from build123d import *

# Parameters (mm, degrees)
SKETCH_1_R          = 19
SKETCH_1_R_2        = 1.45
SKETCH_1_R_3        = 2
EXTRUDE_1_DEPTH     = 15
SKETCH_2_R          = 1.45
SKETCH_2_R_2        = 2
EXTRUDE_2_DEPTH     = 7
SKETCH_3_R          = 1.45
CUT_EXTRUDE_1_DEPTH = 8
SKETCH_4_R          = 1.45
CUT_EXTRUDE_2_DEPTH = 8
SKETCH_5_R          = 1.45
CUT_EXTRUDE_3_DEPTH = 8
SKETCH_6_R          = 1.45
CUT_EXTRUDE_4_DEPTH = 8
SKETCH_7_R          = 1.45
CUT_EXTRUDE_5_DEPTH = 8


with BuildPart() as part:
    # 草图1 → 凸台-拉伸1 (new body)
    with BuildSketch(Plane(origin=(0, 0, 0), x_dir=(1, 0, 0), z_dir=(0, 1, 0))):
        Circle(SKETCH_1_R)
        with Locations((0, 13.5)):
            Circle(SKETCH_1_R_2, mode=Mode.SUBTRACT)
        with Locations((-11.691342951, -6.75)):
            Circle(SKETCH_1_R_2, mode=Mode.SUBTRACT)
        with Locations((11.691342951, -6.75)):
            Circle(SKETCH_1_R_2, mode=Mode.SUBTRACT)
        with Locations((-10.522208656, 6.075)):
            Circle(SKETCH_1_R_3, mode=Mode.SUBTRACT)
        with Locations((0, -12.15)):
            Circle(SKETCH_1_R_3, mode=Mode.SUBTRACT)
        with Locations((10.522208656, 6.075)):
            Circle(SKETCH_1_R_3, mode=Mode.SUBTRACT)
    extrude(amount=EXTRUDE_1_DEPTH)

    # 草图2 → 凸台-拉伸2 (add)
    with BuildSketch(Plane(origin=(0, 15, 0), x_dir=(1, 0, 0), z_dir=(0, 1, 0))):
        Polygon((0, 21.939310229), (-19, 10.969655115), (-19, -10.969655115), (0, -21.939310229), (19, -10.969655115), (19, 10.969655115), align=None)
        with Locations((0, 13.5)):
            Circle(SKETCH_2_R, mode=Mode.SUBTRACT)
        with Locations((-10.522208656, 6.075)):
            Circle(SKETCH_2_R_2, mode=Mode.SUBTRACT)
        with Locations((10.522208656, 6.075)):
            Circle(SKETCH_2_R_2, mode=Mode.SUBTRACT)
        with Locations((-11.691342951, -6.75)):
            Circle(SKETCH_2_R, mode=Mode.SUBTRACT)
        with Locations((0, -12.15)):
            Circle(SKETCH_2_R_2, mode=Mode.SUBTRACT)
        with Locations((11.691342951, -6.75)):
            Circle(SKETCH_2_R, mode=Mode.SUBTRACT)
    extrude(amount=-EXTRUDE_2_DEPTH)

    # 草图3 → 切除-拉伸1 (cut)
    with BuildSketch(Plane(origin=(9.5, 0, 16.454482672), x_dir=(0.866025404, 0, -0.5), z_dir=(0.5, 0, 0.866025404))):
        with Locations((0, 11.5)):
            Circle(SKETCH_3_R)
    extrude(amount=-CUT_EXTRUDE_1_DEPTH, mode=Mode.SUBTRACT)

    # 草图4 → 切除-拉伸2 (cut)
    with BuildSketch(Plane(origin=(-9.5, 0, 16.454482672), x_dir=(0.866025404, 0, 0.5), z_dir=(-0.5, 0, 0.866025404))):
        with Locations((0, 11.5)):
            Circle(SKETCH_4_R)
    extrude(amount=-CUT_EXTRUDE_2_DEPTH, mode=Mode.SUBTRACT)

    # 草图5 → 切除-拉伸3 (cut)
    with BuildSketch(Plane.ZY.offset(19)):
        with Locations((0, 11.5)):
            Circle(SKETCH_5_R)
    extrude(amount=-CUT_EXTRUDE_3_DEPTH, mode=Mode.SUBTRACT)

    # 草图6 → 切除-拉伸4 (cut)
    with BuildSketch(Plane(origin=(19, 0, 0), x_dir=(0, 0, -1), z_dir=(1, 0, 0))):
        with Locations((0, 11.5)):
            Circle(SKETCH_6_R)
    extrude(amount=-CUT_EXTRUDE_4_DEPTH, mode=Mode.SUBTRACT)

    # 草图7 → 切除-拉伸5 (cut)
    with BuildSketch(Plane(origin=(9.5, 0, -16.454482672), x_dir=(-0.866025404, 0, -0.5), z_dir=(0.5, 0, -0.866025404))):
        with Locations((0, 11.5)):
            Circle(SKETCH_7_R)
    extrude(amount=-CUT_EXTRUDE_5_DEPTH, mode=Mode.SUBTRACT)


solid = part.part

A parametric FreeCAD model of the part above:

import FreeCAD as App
import Part
import Sketcher
from FreeCAD import Vector
Q = App.Units.Quantity

doc = App.newDocument("Part")
body = doc.addObject("PartDesign::Body", "Body")

# Sketch on XZ plane
sketch1 = body.newObject("Sketcher::SketchObject", "Sketch")
sketch1.AttachmentSupport = (doc.getObject("XZ_Plane"), [""])
sketch1.MapMode = "FlatFace"
sketch1.addGeometry([
    Part.Circle(Vector(0, 0, 0), Vector(0, 0, 1), 19),  # 0
    Part.Circle(Vector(-11.7, 6.8, 0), Vector(0, 0, 1), 1.4),  # 1
    Part.Circle(Vector(0, 12.2, 0), Vector(0, 0, 1), 2),  # 2
    Part.Circle(Vector(11.7, 6.8, 0), Vector(0, 0, 1), 1.4),  # 3
    Part.Circle(Vector(-10.5, -6.1, 0), Vector(0, 0, 1), 2),  # 4
    Part.Circle(Vector(10.5, -6.1, 0), Vector(0, 0, 1), 2),  # 5
    Part.Circle(Vector(0, -13.5, 0), Vector(0, 0, 1), 1.4),  # 6
], False)
sketch1.addConstraint([
    Sketcher.Constraint("Coincident", 0, 3, -1, 1),
    Sketcher.Constraint("Equal", 1, 3),
    Sketcher.Constraint("Equal", 2, 4),
    Sketcher.Constraint("Equal", 4, 5),
    Sketcher.Constraint("Equal", 3, 6),
    Sketcher.Constraint("Symmetric", 1, 3, 3, 3, -2),
    Sketcher.Constraint("Symmetric", 4, 3, 5, 3, -2),
    Sketcher.Constraint("PointOnObject", 2, 3, -2),
    Sketcher.Constraint("PointOnObject", 6, 3, -2),
    Sketcher.Constraint("Diameter", 0, 38.0),
    Sketcher.Constraint("Diameter", 2, 4.0),
    Sketcher.Constraint("Diameter", 1, 2.9),
    Sketcher.Constraint("DistanceY", 6, 3, -1, 1, 13.5),
    Sketcher.Constraint("DistanceY", 1, 3, 2, 3, 5.4),
    Sketcher.Constraint("DistanceY", -1, 1, 1, 3, 6.75),
    Sketcher.Constraint("DistanceY", 4, 3, -1, 1, 6.075),
    Sketcher.Constraint("DistanceX", 4, 3, -1, 1, 10.522209),
    Sketcher.Constraint("DistanceX", 4, 3, 3, 3, 22.213552),
])
pad1 = body.newObject("PartDesign::Pad", "Pad")
pad1.Profile = sketch1
pad1.Length = 15
pad1.Reversed = True

# Sketch on XZ plane
sketch2 = body.newObject("Sketcher::SketchObject", "Sketch001")
sketch2.AttachmentSupport = (doc.getObject("XZ_Plane"), [""])
sketch2.MapMode = "FlatFace"
sketch2.AttachmentOffset = App.Placement(Vector(0, 0, -15), App.Rotation())
sketch2.addGeometry([
    Part.LineSegment(Vector(0, -21.9, 0), Vector(-19, -11, 0)),  # 0
    Part.LineSegment(Vector(-19, -11, 0), Vector(-19, 11, 0)),  # 1
    Part.LineSegment(Vector(-19, 11, 0), Vector(0, 21.9, 0)),  # 2
    Part.LineSegment(Vector(0, 21.9, 0), Vector(19, 11, 0)),  # 3
    Part.LineSegment(Vector(19, 11, 0), Vector(19, -11, 0)),  # 4
    Part.LineSegment(Vector(19, -11, 0), Vector(0, -21.9, 0)),  # 5
    Part.Circle(Vector(-11.7, 6.8, 0), Vector(0, 0, 1), 1.4),  # 6
    Part.Circle(Vector(0, 12.2, 0), Vector(0, 0, 1), 2),  # 7
    Part.Circle(Vector(11.7, 6.8, 0), Vector(0, 0, 1), 1.4),  # 8
    Part.Circle(Vector(-10.5, -6.1, 0), Vector(0, 0, 1), 2),  # 9
    Part.Circle(Vector(10.5, -6.1, 0), Vector(0, 0, 1), 2),  # 10
    Part.Circle(Vector(0, -13.5, 0), Vector(0, 0, 1), 1.4),  # 11
], False)
sketch2.addConstraint([
    Sketcher.Constraint("Coincident", 0, 2, 1, 1),
    Sketcher.Constraint("Coincident", 1, 2, 2, 1),
    Sketcher.Constraint("Coincident", 2, 2, 3, 1),
    Sketcher.Constraint("Coincident", 3, 2, 4, 1),
    Sketcher.Constraint("Coincident", 4, 2, 5, 1),
    Sketcher.Constraint("Coincident", 5, 2, 0, 1),
    Sketcher.Constraint("Vertical", 1),
    Sketcher.Constraint("Vertical", 4),
    Sketcher.Constraint("Equal", 6, 8),
    Sketcher.Constraint("Equal", 7, 9),
    Sketcher.Constraint("Equal", 9, 10),
    Sketcher.Constraint("Equal", 8, 11),
    Sketcher.Constraint("Symmetric", 0, 2, 3, 2, -1, 1),
    Sketcher.Constraint("Symmetric", 2, 2, 5, 2, -1, 1),
    Sketcher.Constraint("Symmetric", 6, 3, 8, 3, -2),
    Sketcher.Constraint("Symmetric", 9, 3, 10, 3, -2),
    Sketcher.Constraint("PointOnObject", 7, 3, -2),
    Sketcher.Constraint("PointOnObject", 11, 3, -2),
    Sketcher.Constraint("PointOnObject", 2, 2, -2),
    Sketcher.Constraint("Parallel", 2, 5),
    Sketcher.Constraint("Horizontal", 1, 2, 3, 2),
    Sketcher.Constraint("Diameter", 7, 4.0),
    Sketcher.Constraint("Diameter", 6, 2.9),
    Sketcher.Constraint("Angle", 0, Q("150 deg")),
    Sketcher.Constraint("DistanceX", 0, 2, -1, 1, 19.0),
    Sketcher.Constraint("DistanceY", 11, 3, -1, 1, 13.5),
    Sketcher.Constraint("DistanceY", 6, 3, 7, 3, 5.4),
    Sketcher.Constraint("DistanceY", -1, 1, 6, 3, 6.75),
    Sketcher.Constraint("DistanceY", 9, 3, -1, 1, 6.075),
    Sketcher.Constraint("DistanceY", 1, 1, 1, 2, 21.93931),
    Sketcher.Constraint("DistanceX", 9, 3, -1, 1, 10.522209),
    Sketcher.Constraint("DistanceX", 9, 3, 8, 3, 22.213552),
])
pad2 = body.newObject("PartDesign::Pad", "Pad001")
pad2.Profile = sketch2
pad2.Length = 7

# Sketch on an angled plane
sketch3 = body.newObject("Sketcher::SketchObject", "Sketch002")
sketch3.Placement = App.Placement(Vector(9.5, 0, 16.454483), App.Rotation(Vector(0.866025404, 0, -0.5), Vector(0, 1, 0), Vector(0.5, 0, 0.866025404), "ZXY"))
sketch3.addGeometry(Part.Circle(Vector(0, 11.5, 0), Vector(0, 0, 1), 1.4), False)
sketch3.addConstraint([
    Sketcher.Constraint("PointOnObject", 0, 3, -2),
    Sketcher.Constraint("Diameter", 0, 2.9),
    Sketcher.Constraint("DistanceY", -1, 1, 0, 3, 11.5),
])
pocket1 = body.newObject("PartDesign::Pocket", "Pocket")
pocket1.Profile = sketch3
pocket1.Length = 8

# Sketch on an angled plane
sketch4 = body.newObject("Sketcher::SketchObject", "Sketch003")
sketch4.Placement = App.Placement(Vector(-9.5, 0, 16.454483), App.Rotation(Vector(0.866025404, 0, 0.5), Vector(0, 1, 0), Vector(-0.5, 0, 0.866025404), "ZXY"))
sketch4.addGeometry(Part.Circle(Vector(0, 11.5, 0), Vector(0, 0, 1), 1.4), False)
sketch4.addConstraint([
    Sketcher.Constraint("PointOnObject", 0, 3, -2),
    Sketcher.Constraint("Diameter", 0, 2.9),
    Sketcher.Constraint("DistanceY", -1, 1, 0, 3, 11.5),
])
pocket2 = body.newObject("PartDesign::Pocket", "Pocket001")
pocket2.Profile = sketch4
pocket2.Length = 8

# Sketch on YZ plane
sketch5 = body.newObject("Sketcher::SketchObject", "Sketch004")
sketch5.AttachmentSupport = (doc.getObject("YZ_Plane"), [""])
sketch5.MapMode = "FlatFace"
sketch5.AttachmentOffset = App.Placement(Vector(0, 0, -19), App.Rotation())
sketch5.addGeometry(Part.Circle(Vector(11.5, 0, 0), Vector(0, 0, 1), 1.4), False)
sketch5.addConstraint([
    Sketcher.Constraint("PointOnObject", 0, 3, -1),
    Sketcher.Constraint("Diameter", 0, 2.9),
    Sketcher.Constraint("DistanceX", -1, 1, 0, 3, 11.5),
])
pocket3 = body.newObject("PartDesign::Pocket", "Pocket002")
pocket3.Profile = sketch5
pocket3.Length = 8
pocket3.Reversed = True

# Sketch on YZ plane
sketch6 = body.newObject("Sketcher::SketchObject", "Sketch005")
sketch6.AttachmentSupport = (doc.getObject("YZ_Plane"), [""])
sketch6.MapMode = "FlatFace"
sketch6.AttachmentOffset = App.Placement(Vector(0, 0, 19), App.Rotation())
sketch6.addGeometry(Part.Circle(Vector(11.5, 0, 0), Vector(0, 0, 1), 1.4), False)
sketch6.addConstraint([
    Sketcher.Constraint("PointOnObject", 0, 3, -1),
    Sketcher.Constraint("Diameter", 0, 2.9),
    Sketcher.Constraint("DistanceX", -1, 1, 0, 3, 11.5),
])
pocket4 = body.newObject("PartDesign::Pocket", "Pocket003")
pocket4.Profile = sketch6
pocket4.Length = 8

# Sketch on an angled plane
sketch7 = body.newObject("Sketcher::SketchObject", "Sketch006")
sketch7.Placement = App.Placement(Vector(9.5, 0, -16.454483), App.Rotation(Vector(-0.866025404, 0, -0.5), Vector(0, 1, 0), Vector(0.5, 0, -0.866025404), "ZXY"))
sketch7.addGeometry(Part.Circle(Vector(0, 11.5, 0), Vector(0, 0, 1), 1.4), False)
sketch7.addConstraint([
    Sketcher.Constraint("PointOnObject", 0, 3, -2),
    Sketcher.Constraint("Diameter", 0, 2.9),
    Sketcher.Constraint("DistanceY", -1, 1, 0, 3, 11.5),
])
pocket5 = body.newObject("PartDesign::Pocket", "Pocket004")
pocket5.Profile = sketch7
pocket5.Length = 8

doc.recompute()
